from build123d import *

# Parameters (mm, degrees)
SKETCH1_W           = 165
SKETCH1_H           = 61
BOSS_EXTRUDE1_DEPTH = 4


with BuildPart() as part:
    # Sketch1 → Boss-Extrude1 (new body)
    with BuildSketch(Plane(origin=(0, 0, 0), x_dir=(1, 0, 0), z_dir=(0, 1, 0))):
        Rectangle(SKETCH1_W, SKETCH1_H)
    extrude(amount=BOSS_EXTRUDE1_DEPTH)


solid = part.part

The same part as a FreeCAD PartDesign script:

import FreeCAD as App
import Part
import Sketcher
from FreeCAD import Vector

doc = App.newDocument("Part")
body = doc.addObject("PartDesign::Body", "Body")

sketch1 = doc.addObject("Sketcher::SketchObject", "Sketch")
body.addObject(sketch1)
sketch1.AttachmentSupport = (doc.XZ_Plane, [""])
sketch1.MapMode = "FlatFace"
sketch1.addGeometry([
    Part.LineSegment(Vector(-82.5, -30.5, 0), Vector(-82.5, 30.5, 0)),
    Part.LineSegment(Vector(-82.5, 30.5, 0), Vector(82.5, 30.5, 0)),
    Part.LineSegment(Vector(82.5, 30.5, 0), Vector(82.5, -30.5, 0)),
    Part.LineSegment(Vector(82.5, -30.5, 0), Vector(-82.5, -30.5, 0)),
], False)
sketch1.addConstraint([
    Sketcher.Constraint("Coincident", 0, 2, 1, 1),
    Sketcher.Constraint("Coincident", 1, 2, 2, 1),
    Sketcher.Constraint("Coincident", 2, 2, 3, 1),
    Sketcher.Constraint("Coincident", 3, 2, 0, 1),
    Sketcher.Constraint("Vertical", 0),
    Sketcher.Constraint("Horizontal", 1),
    Sketcher.Constraint("Vertical", 2),
    Sketcher.Constraint("Horizontal", 3),
    Sketcher.Constraint("Symmetric", 0, 2, 2, 2, -1, 1),
    Sketcher.Constraint("DistanceX", 1, 1, 1, 2, 165.0),
    Sketcher.Constraint("DistanceY", 0, 1, 0, 2, 61.0),
])
pad1 = doc.addObject("PartDesign::Pad", "Pad")
body.addObject(pad1)
pad1.Profile = sketch1
pad1.Length = 4
pad1.Reversed = True

doc.recompute()
